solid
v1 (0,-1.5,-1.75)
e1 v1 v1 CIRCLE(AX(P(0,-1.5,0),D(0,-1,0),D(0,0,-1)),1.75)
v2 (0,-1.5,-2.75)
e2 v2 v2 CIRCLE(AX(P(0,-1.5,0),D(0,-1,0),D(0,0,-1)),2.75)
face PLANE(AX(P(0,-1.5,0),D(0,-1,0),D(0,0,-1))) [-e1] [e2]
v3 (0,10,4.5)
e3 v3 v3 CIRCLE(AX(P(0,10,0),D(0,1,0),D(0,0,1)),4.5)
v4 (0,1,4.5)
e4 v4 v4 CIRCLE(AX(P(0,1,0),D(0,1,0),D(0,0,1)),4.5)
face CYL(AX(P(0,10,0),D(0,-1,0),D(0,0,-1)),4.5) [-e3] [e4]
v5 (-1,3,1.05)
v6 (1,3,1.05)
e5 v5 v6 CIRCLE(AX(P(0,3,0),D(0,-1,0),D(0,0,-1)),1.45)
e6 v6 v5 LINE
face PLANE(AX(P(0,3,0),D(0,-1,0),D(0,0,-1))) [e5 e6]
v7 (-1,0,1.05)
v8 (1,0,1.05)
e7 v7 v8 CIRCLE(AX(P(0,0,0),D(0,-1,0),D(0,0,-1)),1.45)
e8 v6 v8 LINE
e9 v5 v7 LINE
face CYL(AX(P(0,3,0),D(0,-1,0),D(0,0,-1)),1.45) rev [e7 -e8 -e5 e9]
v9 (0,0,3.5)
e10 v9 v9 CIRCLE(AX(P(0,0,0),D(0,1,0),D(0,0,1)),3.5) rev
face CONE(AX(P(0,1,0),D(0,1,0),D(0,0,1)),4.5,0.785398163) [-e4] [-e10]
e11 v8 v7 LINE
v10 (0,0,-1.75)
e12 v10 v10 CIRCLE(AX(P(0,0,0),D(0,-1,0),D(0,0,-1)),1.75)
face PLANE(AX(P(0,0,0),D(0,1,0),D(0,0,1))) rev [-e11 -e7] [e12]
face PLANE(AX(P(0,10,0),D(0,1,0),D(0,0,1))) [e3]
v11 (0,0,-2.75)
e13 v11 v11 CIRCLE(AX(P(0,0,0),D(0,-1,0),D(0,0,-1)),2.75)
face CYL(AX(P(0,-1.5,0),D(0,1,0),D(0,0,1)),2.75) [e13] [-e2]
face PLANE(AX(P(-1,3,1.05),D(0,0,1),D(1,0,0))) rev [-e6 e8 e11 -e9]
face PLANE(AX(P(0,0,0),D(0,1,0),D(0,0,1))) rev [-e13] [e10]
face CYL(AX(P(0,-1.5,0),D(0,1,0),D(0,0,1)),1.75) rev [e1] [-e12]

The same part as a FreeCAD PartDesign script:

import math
import FreeCAD as App
import Part
import Sketcher


def edges_at(feature, points):
    """Names of the edges that pass closest to the given points."""
    edges = feature.Shape.Edges
    near = lambda p: min(range(len(edges)), key=lambda i: edges[i].distToShape(Part.Vertex(*p))[0])
    return sorted({f"Edge{near(p) + 1}" for p in points})

doc = App.newDocument("Part")
body = doc.addObject("PartDesign::Body", "Body")

# Sketch on XZ plane
sketch1 = body.newObject("Sketcher::SketchObject", "Sketch")
sketch1.AttachmentSupport = (doc.getObject("XZ_Plane"), [""])
sketch1.MapMode = "FlatFace"
sketch1.addGeometry(Part.Circle(App.Vector(0, 0, 0), App.Vector(0, 0, 1), 4.5), False)
sketch1.addConstraint(Sketcher.Constraint("Coincident", 0, 3, -1, 1))
sketch1.addConstraint(Sketcher.Constraint("Diameter", 0, 9.0))
pad1 = body.newObject("PartDesign::Pad", "Pad")
pad1.Profile = sketch1
pad1.Length = 10
pad1.Reversed = True

# Sketch on XZ plane
sketch2 = body.newObject("Sketcher::SketchObject", "Sketch001")
sketch2.AttachmentSupport = (doc.getObject("XZ_Plane"), [""])
sketch2.MapMode = "FlatFace"
sketch2.addGeometry(Part.LineSegment(App.Vector(1, 1.05, 0), App.Vector(-1, 1.05, 0)), False)
sketch2.addGeometry(Part.ArcOfCircle(Part.Circle(App.Vector(0, 0, 0), App.Vector(0, 0, 1), 1.45), math.radians(133.602819), math.radians(406.397181)), False)
sketch2.addConstraint(Sketcher.Constraint("Coincident", 0, 1, 1, 2))
sketch2.addConstraint(Sketcher.Constraint("Coincident", 1, 1, 0, 2))
sketch2.addConstraint(Sketcher.Constraint("Horizontal", 0))
sketch2.addConstraint(Sketcher.Constraint("Coincident", 1, 3, -1, 1))
sketch2.addConstraint(Sketcher.Constraint("DistanceX", 0, 2, 0, 1, 2.0))
sketch2.addConstraint(Sketcher.Constraint("Radius", 1, 1.45))
pocket1 = body.newObject("PartDesign::Pocket", "Pocket")
pocket1.Profile = sketch2
pocket1.Length = 3

# Sketch on XZ plane
sketch3 = body.newObject("Sketcher::SketchObject", "Sketch002")
sketch3.AttachmentSupport = (doc.getObject("XZ_Plane"), [""])
sketch3.MapMode = "FlatFace"
sketch3.addGeometry(Part.Circle(App.Vector(0, 0, 0), App.Vector(0, 0, 1), 2.75), False)
sketch3.addGeometry(Part.Circle(App.Vector(0, 0, 0), App.Vector(0, 0, 1), 1.75), False)
sketch3.addConstraint(Sketcher.Constraint("Coincident", 0, 3, -1, 1))
sketch3.addConstraint(Sketcher.Constraint("Coincident", 1, 3, -1, 1))
sketch3.addConstraint(Sketcher.Constraint("Diameter", 0, 5.5))
sketch3.addConstraint(Sketcher.Constraint("Diameter", 1, 3.5))
pad2 = body.newObject("PartDesign::Pad", "Pad001")
pad2.Profile = sketch3
pad2.Length = 1.5
doc.recompute()

chamfer = body.newObject("PartDesign::Chamfer", "Chamfer")
chamfer.Base = (pad2, edges_at(pad2, [(-4.5, 0, 0)]))
chamfer.Size = 1

doc.recompute()
